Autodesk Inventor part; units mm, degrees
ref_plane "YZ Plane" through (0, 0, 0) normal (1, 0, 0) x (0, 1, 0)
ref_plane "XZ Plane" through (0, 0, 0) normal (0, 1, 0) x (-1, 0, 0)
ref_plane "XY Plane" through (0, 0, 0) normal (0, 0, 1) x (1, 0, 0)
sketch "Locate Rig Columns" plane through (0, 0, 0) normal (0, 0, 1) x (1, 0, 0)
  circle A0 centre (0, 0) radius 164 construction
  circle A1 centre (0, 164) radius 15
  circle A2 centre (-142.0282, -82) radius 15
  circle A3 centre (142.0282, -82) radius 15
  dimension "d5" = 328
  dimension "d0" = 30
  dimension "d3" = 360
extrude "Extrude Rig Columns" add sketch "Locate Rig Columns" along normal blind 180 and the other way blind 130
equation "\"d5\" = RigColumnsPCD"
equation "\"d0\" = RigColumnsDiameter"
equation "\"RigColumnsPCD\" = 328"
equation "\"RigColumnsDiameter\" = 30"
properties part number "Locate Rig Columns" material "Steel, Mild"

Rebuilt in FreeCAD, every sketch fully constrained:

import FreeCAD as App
import Part
import Sketcher

V = App.Vector

doc = App.newDocument("Part")
body = doc.addObject("PartDesign::Body", "Body")
body.AllowCompound = True

# Sketch on XY plane
sketch1 = doc.addObject("Sketcher::SketchObject", "Sketch")
body.addObject(sketch1)
sketch1.AttachmentSupport = (doc.XY_Plane, [""])
sketch1.MapMode = "FlatFace"
sketch1.addGeometry(Part.Circle(V(0, 164, 0), V(0, 0, 1), 15), False)
sketch1.addGeometry(Part.Circle(V(-142, -82, 0), V(0, 0, 1), 15), False)
sketch1.addGeometry(Part.Circle(V(142, -82, 0), V(0, 0, 1), 15), False)
sketch1.addConstraint(Sketcher.Constraint("Equal", 0, 1))
sketch1.addConstraint(Sketcher.Constraint("Equal", 1, 2))
sketch1.addConstraint(Sketcher.Constraint("Symmetric", 1, 3, 2, 3, -2))
sketch1.addConstraint(Sketcher.Constraint("PointOnObject", 0, 3, -2))
sketch1.addConstraint(Sketcher.Constraint("Diameter", 0, 30.0))
sketch1.addConstraint(Sketcher.Constraint("DistanceY", -1, 1, 0, 3, 164.0))
sketch1.addConstraint(Sketcher.Constraint("DistanceY", 1, 3, -1, 1, 82.0))
sketch1.addConstraint(Sketcher.Constraint("DistanceX", 1, 3, -1, 1, 142.0282))
pad1 = doc.addObject("PartDesign::Pad", "Pad")
body.addObject(pad1)
pad1.Profile = sketch1
pad1.Type = "TwoLengths"
pad1.Length = 180
pad1.Length2 = 130

doc.recompute()
